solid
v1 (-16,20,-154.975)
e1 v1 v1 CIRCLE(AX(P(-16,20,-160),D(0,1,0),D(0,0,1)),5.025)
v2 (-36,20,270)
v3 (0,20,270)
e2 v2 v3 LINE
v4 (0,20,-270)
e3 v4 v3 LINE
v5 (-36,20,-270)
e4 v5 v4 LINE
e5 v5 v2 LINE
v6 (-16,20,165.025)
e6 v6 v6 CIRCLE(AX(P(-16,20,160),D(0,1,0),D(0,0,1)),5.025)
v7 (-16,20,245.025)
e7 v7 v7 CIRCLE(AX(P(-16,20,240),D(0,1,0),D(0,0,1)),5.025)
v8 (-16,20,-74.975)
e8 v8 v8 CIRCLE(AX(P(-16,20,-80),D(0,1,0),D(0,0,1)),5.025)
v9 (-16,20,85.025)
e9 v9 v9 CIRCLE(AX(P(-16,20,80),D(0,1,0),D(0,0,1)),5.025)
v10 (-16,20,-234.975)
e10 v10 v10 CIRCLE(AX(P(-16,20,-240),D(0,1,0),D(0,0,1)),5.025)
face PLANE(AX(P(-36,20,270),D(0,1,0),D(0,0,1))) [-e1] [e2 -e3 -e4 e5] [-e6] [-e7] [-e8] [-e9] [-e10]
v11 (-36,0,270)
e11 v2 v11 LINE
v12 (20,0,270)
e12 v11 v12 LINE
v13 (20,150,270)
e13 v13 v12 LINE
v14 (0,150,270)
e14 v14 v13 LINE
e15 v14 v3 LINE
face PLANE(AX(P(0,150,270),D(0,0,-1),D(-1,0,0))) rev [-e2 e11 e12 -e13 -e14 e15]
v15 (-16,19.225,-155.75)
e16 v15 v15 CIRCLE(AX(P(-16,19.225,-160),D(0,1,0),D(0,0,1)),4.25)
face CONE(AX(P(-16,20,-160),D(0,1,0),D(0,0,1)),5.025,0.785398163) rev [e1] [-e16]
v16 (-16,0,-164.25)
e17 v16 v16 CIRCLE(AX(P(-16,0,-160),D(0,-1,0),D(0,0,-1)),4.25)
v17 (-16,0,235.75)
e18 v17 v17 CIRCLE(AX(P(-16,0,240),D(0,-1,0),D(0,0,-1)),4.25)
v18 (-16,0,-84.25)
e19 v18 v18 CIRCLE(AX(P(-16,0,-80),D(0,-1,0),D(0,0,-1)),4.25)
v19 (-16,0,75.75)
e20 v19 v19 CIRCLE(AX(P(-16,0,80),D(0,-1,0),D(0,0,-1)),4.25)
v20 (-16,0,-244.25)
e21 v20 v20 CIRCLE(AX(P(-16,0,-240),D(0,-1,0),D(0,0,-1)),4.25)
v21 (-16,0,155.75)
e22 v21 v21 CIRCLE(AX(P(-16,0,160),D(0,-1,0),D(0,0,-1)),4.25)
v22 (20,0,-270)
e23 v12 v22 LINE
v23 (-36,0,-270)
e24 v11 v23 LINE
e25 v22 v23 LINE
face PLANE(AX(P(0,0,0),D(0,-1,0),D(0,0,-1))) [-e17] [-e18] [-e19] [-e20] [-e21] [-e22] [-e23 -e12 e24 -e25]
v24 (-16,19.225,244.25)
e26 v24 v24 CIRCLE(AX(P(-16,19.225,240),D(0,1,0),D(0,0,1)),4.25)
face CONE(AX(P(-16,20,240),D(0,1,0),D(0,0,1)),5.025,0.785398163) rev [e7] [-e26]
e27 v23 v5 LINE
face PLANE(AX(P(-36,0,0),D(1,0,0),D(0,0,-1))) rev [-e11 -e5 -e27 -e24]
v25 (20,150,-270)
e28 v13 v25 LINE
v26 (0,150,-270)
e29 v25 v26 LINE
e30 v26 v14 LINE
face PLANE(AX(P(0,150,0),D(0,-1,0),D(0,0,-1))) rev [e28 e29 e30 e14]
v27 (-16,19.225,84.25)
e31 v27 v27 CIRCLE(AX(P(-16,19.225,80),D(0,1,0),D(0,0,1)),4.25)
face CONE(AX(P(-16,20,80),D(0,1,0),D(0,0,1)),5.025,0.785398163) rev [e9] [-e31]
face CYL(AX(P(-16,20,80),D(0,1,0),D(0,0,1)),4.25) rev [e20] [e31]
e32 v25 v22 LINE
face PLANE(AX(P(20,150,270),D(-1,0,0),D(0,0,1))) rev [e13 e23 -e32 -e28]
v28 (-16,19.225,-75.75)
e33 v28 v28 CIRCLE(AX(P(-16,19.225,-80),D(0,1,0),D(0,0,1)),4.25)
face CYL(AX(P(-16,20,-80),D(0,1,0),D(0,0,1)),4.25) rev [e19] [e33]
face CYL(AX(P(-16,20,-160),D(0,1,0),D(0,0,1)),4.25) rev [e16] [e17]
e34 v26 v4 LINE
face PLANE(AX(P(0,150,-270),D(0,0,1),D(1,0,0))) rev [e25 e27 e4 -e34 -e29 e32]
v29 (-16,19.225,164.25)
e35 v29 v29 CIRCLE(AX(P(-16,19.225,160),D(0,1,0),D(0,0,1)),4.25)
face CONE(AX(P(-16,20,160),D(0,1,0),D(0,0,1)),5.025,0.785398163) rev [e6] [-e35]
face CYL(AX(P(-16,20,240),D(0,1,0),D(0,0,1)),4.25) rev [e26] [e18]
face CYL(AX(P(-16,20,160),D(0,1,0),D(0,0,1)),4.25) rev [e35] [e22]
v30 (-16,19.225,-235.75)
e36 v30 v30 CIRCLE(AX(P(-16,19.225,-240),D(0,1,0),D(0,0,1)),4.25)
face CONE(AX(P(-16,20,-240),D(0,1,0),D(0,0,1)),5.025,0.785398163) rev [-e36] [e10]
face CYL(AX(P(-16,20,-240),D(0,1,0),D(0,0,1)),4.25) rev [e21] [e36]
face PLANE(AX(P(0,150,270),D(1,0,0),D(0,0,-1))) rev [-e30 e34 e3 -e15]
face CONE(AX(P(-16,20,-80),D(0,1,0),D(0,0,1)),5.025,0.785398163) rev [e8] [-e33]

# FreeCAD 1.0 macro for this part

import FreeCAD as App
import Part
import Sketcher
Q = App.Units.Quantity

doc = App.newDocument("Part")
body = doc.addObject("PartDesign::Body", "Body")

# Sketch on XZ plane
sketch1 = body.newObject("Sketcher::SketchObject", "Sketch")
sketch1.AttachmentSupport = (doc.getObject("XZ_Plane"), [""])
sketch1.MapMode = "FlatFace"
sketch1.addGeometry([
    Part.LineSegment(App.Vector(0, -270, 0), App.Vector(0, 270, 0)),
    Part.LineSegment(App.Vector(0, 270, 0), App.Vector(20, 270, 0)),
    Part.LineSegment(App.Vector(20, 270, 0), App.Vector(20, -270, 0)),
    Part.LineSegment(App.Vector(20, -270, 0), App.Vector(0, -270, 0)),
], False)
sketch1.addConstraint([
    Sketcher.Constraint("Coincident", 0, 2, 1, 1),
    Sketcher.Constraint("Coincident", 1, 2, 2, 1),
    Sketcher.Constraint("Coincident", 2, 2, 3, 1),
    Sketcher.Constraint("Coincident", 3, 2, 0, 1),
    Sketcher.Constraint("Vertical", 0),
    Sketcher.Constraint("Horizontal", 1),
    Sketcher.Constraint("Vertical", 2),
    Sketcher.Constraint("Horizontal", 3),
    Sketcher.Constraint("Symmetric", 0, 2, 3, 2, -1, 1),
    Sketcher.Constraint("DistanceX", 1, 1, 1, 2, Q("20 mm")),
    Sketcher.Constraint("DistanceY", 0, 1, 0, 2, Q("540 mm")),
])
pad1 = body.newObject("PartDesign::Pad", "Pad")
pad1.Profile = sketch1
pad1.Length = 150
pad1.Reversed = True

# Sketch on YZ plane
sketch2 = body.newObject("Sketcher::SketchObject", "Sketch001")
sketch2.AttachmentSupport = (doc.getObject("YZ_Plane"), [""])
sketch2.MapMode = "FlatFace"
sketch2.addGeometry([
    Part.LineSegment(App.Vector(20, 270, 0), App.Vector(0, 270, 0)),
    Part.LineSegment(App.Vector(0, 270, 0), App.Vector(0, -270, 0)),
    Part.LineSegment(App.Vector(0, -270, 0), App.Vector(20, -270, 0)),
    Part.LineSegment(App.Vector(20, -270, 0), App.Vector(20, 270, 0)),
], False)
sketch2.addConstraint([
    Sketcher.Constraint("Coincident", 0, 2, 1, 1),
    Sketcher.Constraint("Coincident", 1, 2, 2, 1),
    Sketcher.Constraint("Coincident", 2, 2, 3, 1),
    Sketcher.Constraint("Coincident", 3, 2, 0, 1),
    Sketcher.Constraint("Horizontal", 0),
    Sketcher.Constraint("Vertical", 1),
    Sketcher.Constraint("Horizontal", 2),
    Sketcher.Constraint("Vertical", 3),
    Sketcher.Constraint("Symmetric", 0, 2, 1, 2, -1, 1),
    Sketcher.Constraint("DistanceX", 0, 2, 0, 1, Q("20 mm")),
    Sketcher.Constraint("DistanceY", 1, 2, 1, 1, Q("540 mm")),
])
pad2 = body.newObject("PartDesign::Pad", "Pad001")
pad2.Profile = sketch2
pad2.Length = 36
pad2.Reversed = True

# Sketch on YZ plane
sketch3 = body.newObject("Sketcher::SketchObject", "Sketch002")
sketch3.AttachmentSupport = (doc.getObject("YZ_Plane"), [""])
sketch3.MapMode = "FlatFace"
sketch3.AttachmentOffset = App.Placement(App.Vector(0, 0, -16), App.Rotation())
sketch3.addGeometry([
    Part.LineSegment(App.Vector(-7.5, -80, 0), App.Vector(20, -80, 0)),  # 0
    Part.LineSegment(App.Vector(20, -80, 0), App.Vector(20, -75, 0)),  # 1
    Part.LineSegment(App.Vector(20, -75, 0), App.Vector(19.2, -75.8, 0)),  # 2
    Part.LineSegment(App.Vector(19.2, -75.8, 0), App.Vector(-4.9, -75.8, 0)),  # 3
    Part.LineSegment(App.Vector(-4.9, -75.8, 0), App.Vector(-7.5, -80, 0)),  # 4
], False)
sketch3.addGeometry(Part.LineSegment(App.Vector(20, -80, 0), App.Vector(-7.5, -80, 0)), True)  # axis
sketch3.addConstraint([
    Sketcher.Constraint("Coincident", 0, 2, 1, 1),
    Sketcher.Constraint("Coincident", 1, 2, 2, 1),
    Sketcher.Constraint("Coincident", 2, 2, 3, 1),
    Sketcher.Constraint("Coincident", 3, 2, 4, 1),
    Sketcher.Constraint("Coincident", 4, 2, 0, 1),
    Sketcher.Constraint("Horizontal", 0),
    Sketcher.Constraint("Vertical", 1),
    Sketcher.Constraint("Horizontal", 3),
    Sketcher.Constraint("Horizontal", 5),
    Sketcher.Constraint("Coincident", 5, 1, 0, 2),
    Sketcher.Constraint("Equal", 0, 5),
    Sketcher.Constraint("Angle", 2, Q("-135 deg")),
    Sketcher.Constraint("Angle", 4, Q("-121 deg")),
    Sketcher.Constraint("DistanceX", 0, 1, 0, 2, Q("27.5 mm")),
    Sketcher.Constraint("DistanceX", -1, 1, 0, 2, Q("20 mm")),
    Sketcher.Constraint("DistanceY", 0, 2, -1, 1, Q("80 mm")),
    Sketcher.Constraint("DistanceY", 1, 1, 1, 2, Q("5.025 mm")),
    Sketcher.Constraint("DistanceY", 2, 2, -1, 1, Q("75.75 mm")),
])
groove = body.newObject("PartDesign::Groove", "Groove")
groove.Profile = sketch3
groove.ReferenceAxis = (sketch3, ["Axis0"])
groove.Angle = 360
doc.recompute()

linearpattern = body.newObject("PartDesign::LinearPattern", "LinearPattern")
linearpattern.Originals = [groove]
linearpattern.Direction = (doc.getObject("Z_Axis"), [""])
linearpattern.Mode = "offset"
linearpattern.Offset = 80
linearpattern.Occurrences = 2
linearpattern.Reversed = True
body.Tip = linearpattern
doc.recompute()

linearpattern2 = body.newObject("PartDesign::LinearPattern", "LinearPattern001")
linearpattern2.Originals = [groove]
linearpattern2.Direction = (doc.getObject("Z_Axis"), [""])
linearpattern2.Mode = "offset"
linearpattern2.Offset = 160
linearpattern2.Occurrences = 2
linearpattern2.Reversed = True
body.Tip = linearpattern2
doc.recompute()

mirrored = body.newObject("PartDesign::Mirrored", "Mirrored")
mirrored.Originals = [groove]
mirrored.MirrorPlane = (doc.getObject("XY_Plane"), [""])
body.Tip = mirrored

# Sketch on YZ plane
sketch4 = body.newObject("Sketcher::SketchObject", "Sketch003")
sketch4.AttachmentSupport = (doc.getObject("YZ_Plane"), [""])
sketch4.MapMode = "FlatFace"
sketch4.AttachmentOffset = App.Placement(App.Vector(0, 0, -16), App.Rotation())
sketch4.addGeometry([
    Part.LineSegment(App.Vector(20, 160, 0), App.Vector(-7.5, 160, 0)),  # 0
    Part.LineSegment(App.Vector(-7.5, 160, 0), App.Vector(-4.9, 155.8, 0)),  # 1
    Part.LineSegment(App.Vector(-4.9, 155.8, 0), App.Vector(19.2, 155.8, 0)),  # 2
    Part.LineSegment(App.Vector(19.2, 155.8, 0), App.Vector(20, 155, 0)),  # 3
    Part.LineSegment(App.Vector(20, 155, 0), App.Vector(20, 160, 0)),  # 4
], False)
sketch4.addGeometry(Part.LineSegment(App.Vector(-7.5, 160, 0), App.Vector(20, 160, 0)), True)  # axis
sketch4.addConstraint([
    Sketcher.Constraint("Coincident", 0, 2, 1, 1),
    Sketcher.Constraint("Coincident", 1, 2, 2, 1),
    Sketcher.Constraint("Coincident", 2, 2, 3, 1),
    Sketcher.Constraint("Coincident", 3, 2, 4, 1),
    Sketcher.Constraint("Coincident", 4, 2, 0, 1),
    Sketcher.Constraint("Horizontal", 0),
    Sketcher.Constraint("Horizontal", 2),
    Sketcher.Constraint("Vertical", 4),
    Sketcher.Constraint("Horizontal", 5),
    Sketcher.Constraint("Coincident", 5, 1, 0, 2),
    Sketcher.Constraint("Vertical", 3, 2, 5, 2),
    Sketcher.Constraint("Angle", 1, Q("-59 deg")),
    Sketcher.Constraint("Angle", 3, Q("-45 deg")),
    Sketcher.Constraint("DistanceX", 0, 2, 0, 1, Q("27.5 mm")),
    Sketcher.Constraint("DistanceY", -1, 1, 0, 2, Q("160 mm")),
    Sketcher.Constraint("DistanceX", -1, 1, 3, 2, Q("20 mm")),
    Sketcher.Constraint("DistanceY", 4, 1, 4, 2, Q("5.025 mm")),
    Sketcher.Constraint("DistanceY", -1, 1, 1, 2, Q("155.75 mm")),
])
groove2 = body.newObject("PartDesign::Groove", "Groove001")
groove2.Profile = sketch4
groove2.ReferenceAxis = (sketch4, ["Axis0"])
groove2.Angle = 360

# Sketch on YZ plane
sketch5 = body.newObject("Sketcher::SketchObject", "Sketch004")
sketch5.AttachmentSupport = (doc.getObject("YZ_Plane"), [""])
sketch5.MapMode = "FlatFace"
sketch5.AttachmentOffset = App.Placement(App.Vector(0, 0, -16), App.Rotation())
sketch5.addGeometry([
    Part.LineSegment(App.Vector(20, 240, 0), App.Vector(-7.5, 240, 0)),  # 0
    Part.LineSegment(App.Vector(-7.5, 240, 0), App.Vector(-4.9, 235.8, 0)),  # 1
    Part.LineSegment(App.Vector(-4.9, 235.8, 0), App.Vector(19.2, 235.8, 0)),  # 2
    Part.LineSegment(App.Vector(19.2, 235.8, 0), App.Vector(20, 235, 0)),  # 3
    Part.LineSegment(App.Vector(20, 235, 0), App.Vector(20, 240, 0)),  # 4
], False)
sketch5.addGeometry(Part.LineSegment(App.Vector(-7.5, 240, 0), App.Vector(20, 240, 0)), True)  # axis
sketch5.addConstraint([
    Sketcher.Constraint("Coincident", 0, 2, 1, 1),
    Sketcher.Constraint("Coincident", 1, 2, 2, 1),
    Sketcher.Constraint("Coincident", 2, 2, 3, 1),
    Sketcher.Constraint("Coincident", 3, 2, 4, 1),
    Sketcher.Constraint("Coincident", 4, 2, 0, 1),
    Sketcher.Constraint("Horizontal", 0),
    Sketcher.Constraint("Horizontal", 2),
    Sketcher.Constraint("Vertical", 4),
    Sketcher.Constraint("Horizontal", 5),
    Sketcher.Constraint("Coincident", 5, 1, 0, 2),
    Sketcher.Constraint("Vertical", 3, 2, 5, 2),
    Sketcher.Constraint("Angle", 1, Q("-59 deg")),
    Sketcher.Constraint("Angle", 3, Q("-45 deg")),
    Sketcher.Constraint("DistanceX", 0, 2, 0, 1, Q("27.5 mm")),
    Sketcher.Constraint("DistanceY", -1, 1, 0, 2, Q("240 mm")),
    Sketcher.Constraint("DistanceX", -1, 1, 3, 2, Q("20 mm")),
    Sketcher.Constraint("DistanceY", 4, 1, 4, 2, Q("5.025 mm")),
    Sketcher.Constraint("DistanceY", -1, 1, 1, 2, Q("235.75 mm")),
])
groove3 = body.newObject("PartDesign::Groove", "Groove002")
groove3.Profile = sketch5
groove3.ReferenceAxis = (sketch5, ["Axis0"])
groove3.Angle = 360

doc.recompute()
